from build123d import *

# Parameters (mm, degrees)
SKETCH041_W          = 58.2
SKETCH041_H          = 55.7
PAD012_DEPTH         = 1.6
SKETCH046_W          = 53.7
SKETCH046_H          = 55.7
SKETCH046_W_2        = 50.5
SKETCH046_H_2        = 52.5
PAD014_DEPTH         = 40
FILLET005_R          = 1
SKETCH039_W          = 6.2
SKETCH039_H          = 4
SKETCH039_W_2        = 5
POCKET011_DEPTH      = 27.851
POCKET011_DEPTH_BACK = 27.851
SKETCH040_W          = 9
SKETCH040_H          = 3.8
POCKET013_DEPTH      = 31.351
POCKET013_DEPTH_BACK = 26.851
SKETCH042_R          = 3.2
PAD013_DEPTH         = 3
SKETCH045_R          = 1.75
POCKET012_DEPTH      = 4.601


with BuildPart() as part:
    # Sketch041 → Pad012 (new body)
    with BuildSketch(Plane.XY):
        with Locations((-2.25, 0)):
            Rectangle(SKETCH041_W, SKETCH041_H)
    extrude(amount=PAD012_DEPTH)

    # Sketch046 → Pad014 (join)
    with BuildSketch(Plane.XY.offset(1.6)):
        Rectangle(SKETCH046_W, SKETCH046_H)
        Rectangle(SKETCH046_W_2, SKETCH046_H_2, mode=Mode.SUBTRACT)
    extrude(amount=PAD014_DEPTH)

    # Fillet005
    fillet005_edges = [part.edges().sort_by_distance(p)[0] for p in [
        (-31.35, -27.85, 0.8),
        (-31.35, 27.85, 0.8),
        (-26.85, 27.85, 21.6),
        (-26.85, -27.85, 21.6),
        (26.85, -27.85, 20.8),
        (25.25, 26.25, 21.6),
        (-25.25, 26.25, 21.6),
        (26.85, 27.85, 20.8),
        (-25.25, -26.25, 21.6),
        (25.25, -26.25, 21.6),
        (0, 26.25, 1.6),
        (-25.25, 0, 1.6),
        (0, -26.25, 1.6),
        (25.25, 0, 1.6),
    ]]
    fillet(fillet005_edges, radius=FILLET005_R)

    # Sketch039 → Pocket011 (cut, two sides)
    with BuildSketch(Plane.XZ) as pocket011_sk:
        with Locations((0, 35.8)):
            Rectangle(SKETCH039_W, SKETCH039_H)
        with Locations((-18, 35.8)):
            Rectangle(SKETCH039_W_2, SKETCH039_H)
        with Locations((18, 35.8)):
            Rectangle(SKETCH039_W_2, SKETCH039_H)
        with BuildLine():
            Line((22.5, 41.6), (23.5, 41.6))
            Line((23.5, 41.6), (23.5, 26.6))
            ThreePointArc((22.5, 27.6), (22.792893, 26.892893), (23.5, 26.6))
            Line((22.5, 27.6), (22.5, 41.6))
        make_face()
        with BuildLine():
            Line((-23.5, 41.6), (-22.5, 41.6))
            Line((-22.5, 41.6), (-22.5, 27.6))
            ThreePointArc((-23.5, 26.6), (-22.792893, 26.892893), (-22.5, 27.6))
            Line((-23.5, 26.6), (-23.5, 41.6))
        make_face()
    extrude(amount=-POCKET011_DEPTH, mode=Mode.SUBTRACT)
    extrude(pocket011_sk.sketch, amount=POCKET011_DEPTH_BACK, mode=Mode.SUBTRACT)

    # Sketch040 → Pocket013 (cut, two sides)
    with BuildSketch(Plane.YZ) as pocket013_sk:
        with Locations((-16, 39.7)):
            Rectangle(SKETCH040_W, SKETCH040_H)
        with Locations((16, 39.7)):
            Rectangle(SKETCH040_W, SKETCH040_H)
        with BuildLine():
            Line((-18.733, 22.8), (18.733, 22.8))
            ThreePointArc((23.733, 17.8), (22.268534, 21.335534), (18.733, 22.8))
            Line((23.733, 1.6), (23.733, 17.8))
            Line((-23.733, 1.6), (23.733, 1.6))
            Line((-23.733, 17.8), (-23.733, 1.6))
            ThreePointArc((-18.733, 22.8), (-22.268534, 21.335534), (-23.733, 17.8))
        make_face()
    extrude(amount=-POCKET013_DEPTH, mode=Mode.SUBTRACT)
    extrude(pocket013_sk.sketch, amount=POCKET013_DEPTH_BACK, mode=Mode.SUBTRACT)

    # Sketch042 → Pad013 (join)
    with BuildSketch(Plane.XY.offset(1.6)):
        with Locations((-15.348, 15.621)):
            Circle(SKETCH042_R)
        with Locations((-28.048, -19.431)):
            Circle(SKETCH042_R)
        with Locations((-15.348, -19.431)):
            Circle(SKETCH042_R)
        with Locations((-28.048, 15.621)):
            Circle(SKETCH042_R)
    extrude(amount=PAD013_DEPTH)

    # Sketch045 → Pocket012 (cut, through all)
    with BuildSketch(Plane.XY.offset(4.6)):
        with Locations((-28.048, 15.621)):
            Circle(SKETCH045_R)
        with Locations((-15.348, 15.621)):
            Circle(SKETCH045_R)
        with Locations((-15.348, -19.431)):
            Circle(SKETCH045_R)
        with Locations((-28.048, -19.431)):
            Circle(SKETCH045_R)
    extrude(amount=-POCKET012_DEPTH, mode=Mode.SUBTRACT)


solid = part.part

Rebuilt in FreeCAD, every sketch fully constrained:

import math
import FreeCAD as App
import Part
import Sketcher
from FreeCAD import Vector
Q = App.Units.Quantity


def edges_at(feature, points):
    """Names of the edges that pass closest to the given points."""
    edges = feature.Shape.Edges
    near = lambda p: min(range(len(edges)), key=lambda i: edges[i].distToShape(Part.Vertex(*p))[0])
    return sorted({f"Edge{near(p) + 1}" for p in points})


def add_polygon(sketch, points):
    """Adds a closed chain of lines whose ends are joined by coincident constraints."""
    first, n = sketch.GeometryCount, len(points)
    for a, b in zip(points, points[1:] + points[:1]):
        sketch.addGeometry(Part.LineSegment(App.Vector(*a, 0), App.Vector(*b, 0)), False)
    for i in range(n):
        sketch.addConstraint(Sketcher.Constraint("Coincident", first + i, 2, first + (i + 1) % n, 1))

doc = App.newDocument("Part")
body = doc.addObject("PartDesign::Body", "Body")

sketch1 = body.newObject("Sketcher::SketchObject", "Sketch")
sketch1.AttachmentSupport = (doc.getObject("XY_Plane"), [""])
sketch1.MapMode = "FlatFace"
add_polygon(sketch1, [(-31, 28), (-31, -28), (27, -28), (27, 28)])
sketch1.addConstraint(Sketcher.Constraint("Vertical", 0))
sketch1.addConstraint(Sketcher.Constraint("Horizontal", 1))
sketch1.addConstraint(Sketcher.Constraint("Vertical", 2))
sketch1.addConstraint(Sketcher.Constraint("Horizontal", 3))
sketch1.addConstraint(Sketcher.Constraint("DistanceX", 1, 1, 1, 2, Q("58.2 mm")))
sketch1.addConstraint(Sketcher.Constraint("DistanceY", 0, 2, 0, 1, Q("55.7 mm")))
sketch1.addConstraint(Sketcher.Constraint("DistanceX", 0, 2, -1, 1, Q("31.35 mm")))
sketch1.addConstraint(Sketcher.Constraint("DistanceY", 0, 2, -1, 1, Q("27.85 mm")))
pad1 = body.newObject("PartDesign::Pad", "Pad")
pad1.Profile = sketch1
pad1.Length = 1.6

sketch2 = body.newObject("Sketcher::SketchObject", "Sketch001")
sketch2.AttachmentSupport = (doc.getObject("XY_Plane"), [""])
sketch2.MapMode = "FlatFace"
sketch2.AttachmentOffset = App.Placement(Vector(0, 0, 1.6), App.Rotation())
add_polygon(sketch2, [(-27, 28), (-27, -28), (27, -28), (27, 28)])
add_polygon(sketch2, [(25, -26), (-25, -26), (-25, 26), (25, 26)])
sketch2.addConstraint(Sketcher.Constraint("Vertical", 0))
sketch2.addConstraint(Sketcher.Constraint("Horizontal", 1))
sketch2.addConstraint(Sketcher.Constraint("Vertical", 2))
sketch2.addConstraint(Sketcher.Constraint("Horizontal", 3))
sketch2.addConstraint(Sketcher.Constraint("Horizontal", 4))
sketch2.addConstraint(Sketcher.Constraint("Vertical", 5))
sketch2.addConstraint(Sketcher.Constraint("Horizontal", 6))
sketch2.addConstraint(Sketcher.Constraint("Vertical", 7))
sketch2.addConstraint(Sketcher.Constraint("Symmetric", 0, 2, 2, 2, -1, 1))
sketch2.addConstraint(Sketcher.Constraint("Symmetric", 4, 2, 6, 2, -1, 1))
sketch2.addConstraint(Sketcher.Constraint("DistanceX", 1, 1, 1, 2, Q("53.7 mm")))
sketch2.addConstraint(Sketcher.Constraint("DistanceX", 4, 2, 4, 1, Q("50.5 mm")))
sketch2.addConstraint(Sketcher.Constraint("DistanceY", 0, 2, 0, 1, Q("55.7 mm")))
sketch2.addConstraint(Sketcher.Constraint("DistanceY", 5, 1, 5, 2, Q("52.5 mm")))
pad2 = body.newObject("PartDesign::Pad", "Pad001")
pad2.Profile = sketch2
pad2.Length = 40
doc.recompute()

fillet = body.newObject("PartDesign::Fillet", "Fillet")
fillet.Base = (pad2, edges_at(pad2, [
    (-31.35, -27.85, 0.8),
    (-31.35, 27.85, 0.8),
    (-26.85, 27.85, 21.6),
    (-26.85, -27.85, 21.6),
    (26.85, -27.85, 20.8),
    (25.25, 26.25, 21.6),
    (-25.25, 26.25, 21.6),
    (26.85, 27.85, 20.8),
    (-25.25, -26.25, 21.6),
    (25.25, -26.25, 21.6),
    (0, 26.25, 1.6),
    (-25.25, 0, 1.6),
    (0, -26.25, 1.6),
    (25.25, 0, 1.6),
]))
fillet.Radius = 1

sketch3 = body.newObject("Sketcher::SketchObject", "Sketch002")
sketch3.AttachmentSupport = (doc.getObject("XZ_Plane"), [""])
sketch3.MapMode = "FlatFace"
add_polygon(sketch3, [(-3.1, 37.8), (-3.1, 33.8), (3.1, 33.8), (3.1, 37.8)])
add_polygon(sketch3, [(-20.5, 37.8), (-20.5, 33.8), (-15.5, 33.8), (-15.5, 37.8)])
add_polygon(sketch3, [(15.5, 37.8), (15.5, 33.8), (20.5, 33.8), (20.5, 37.8)])
sketch3.addGeometry(Part.LineSegment(Vector(23.5, 41.6, 0), Vector(22.5, 41.6, 0)), False)
sketch3.addGeometry(Part.LineSegment(Vector(22.5, 41.6, 0), Vector(22.5, 27.6, 0)), False)
sketch3.addGeometry(Part.ArcOfCircle(Part.Circle(Vector(23.5, 27.6, 0), Vector(0, 0, 1), 1), math.radians(180), math.radians(270)), False)
sketch3.addGeometry(Part.LineSegment(Vector(23.5, 26.6, 0), Vector(23.5, 41.6, 0)), False)
sketch3.addGeometry(Part.LineSegment(Vector(-22.5, 41.6, 0), Vector(-23.5, 41.6, 0)), False)
sketch3.addGeometry(Part.LineSegment(Vector(-23.5, 41.6, 0), Vector(-23.5, 26.6, 0)), False)
sketch3.addGeometry(Part.ArcOfCircle(Part.Circle(Vector(-23.5, 27.6, 0), Vector(0, 0, 1), 1), math.radians(-90), math.radians(0)), False)
sketch3.addGeometry(Part.LineSegment(Vector(-22.5, 27.6, 0), Vector(-22.5, 41.6, 0)), False)
sketch3.addConstraint(Sketcher.Constraint("Coincident", 12, 2, 13, 1))
sketch3.addConstraint(Sketcher.Constraint("Tangent", 13, 2, 14, 1))
sketch3.addConstraint(Sketcher.Constraint("Coincident", 14, 2, 15, 1))
sketch3.addConstraint(Sketcher.Constraint("Coincident", 15, 2, 12, 1))
sketch3.addConstraint(Sketcher.Constraint("Coincident", 16, 2, 17, 1))
sketch3.addConstraint(Sketcher.Constraint("Coincident", 17, 2, 18, 1))
sketch3.addConstraint(Sketcher.Constraint("Tangent", 18, 2, 19, 1))
sketch3.addConstraint(Sketcher.Constraint("Coincident", 19, 2, 16, 1))
sketch3.addConstraint(Sketcher.Constraint("Vertical", 0))
sketch3.addConstraint(Sketcher.Constraint("Horizontal", 1))
sketch3.addConstraint(Sketcher.Constraint("Vertical", 2))
sketch3.addConstraint(Sketcher.Constraint("Horizontal", 3))
sketch3.addConstraint(Sketcher.Constraint("Vertical", 4))
sketch3.addConstraint(Sketcher.Constraint("Horizontal", 5))
sketch3.addConstraint(Sketcher.Constraint("Vertical", 6))
sketch3.addConstraint(Sketcher.Constraint("Horizontal", 7))
sketch3.addConstraint(Sketcher.Constraint("Vertical", 8))
sketch3.addConstraint(Sketcher.Constraint("Horizontal", 9))
sketch3.addConstraint(Sketcher.Constraint("Vertical", 10))
sketch3.addConstraint(Sketcher.Constraint("Horizontal", 11))
sketch3.addConstraint(Sketcher.Constraint("Horizontal", 12))
sketch3.addConstraint(Sketcher.Constraint("Vertical", 13))
sketch3.addConstraint(Sketcher.Constraint("Vertical", 15))
sketch3.addConstraint(Sketcher.Constraint("Horizontal", 16))
sketch3.addConstraint(Sketcher.Constraint("Vertical", 17))
sketch3.addConstraint(Sketcher.Constraint("Vertical", 19))
sketch3.addConstraint(Sketcher.Constraint("Equal", 14, 18))
sketch3.addConstraint(Sketcher.Constraint("Symmetric", 14, 3, 18, 3, -2))
sketch3.addConstraint(Sketcher.Constraint("Symmetric", 5, 2, 8, 2, -2))
sketch3.addConstraint(Sketcher.Constraint("Symmetric", 7, 2, 10, 2, -2))
sketch3.addConstraint(Sketcher.Constraint("Symmetric", 15, 2, 16, 2, -2))
sketch3.addConstraint(Sketcher.Constraint("Horizontal", 1, 2, 4, 2))
sketch3.addConstraint(Sketcher.Constraint("Horizontal", 3, 2, 6, 2))
sketch3.addConstraint(Sketcher.Constraint("Vertical", 18, 3, 16, 2))
sketch3.addConstraint(Sketcher.Constraint("Radius", 14, Q("0.999999 mm")))
sketch3.addConstraint(Sketcher.Constraint("DistanceX", 5, 1, 5, 2, Q("5 mm")))
sketch3.addConstraint(Sketcher.Constraint("DistanceY", 0, 2, 0, 1, Q("4 mm")))
sketch3.addConstraint(Sketcher.Constraint("DistanceY", 13, 2, 13, 1, Q("14 mm")))
sketch3.addConstraint(Sketcher.Constraint("DistanceX", 1, 1, 1, 2, Q("6.2 mm")))
sketch3.addConstraint(Sketcher.Constraint("DistanceX", 18, 3, 14, 3, Q("46.999999 mm")))
sketch3.addConstraint(Sketcher.Constraint("DistanceX", 18, 3, 4, 2, Q("2.999999 mm")))
sketch3.addConstraint(Sketcher.Constraint("DistanceY", -1, 1, 14, 3, Q("27.599999 mm")))
sketch3.addConstraint(Sketcher.Constraint("DistanceX", 0, 2, -1, 1, Q("3.1 mm")))
sketch3.addConstraint(Sketcher.Constraint("DistanceY", -1, 1, 0, 2, Q("33.8 mm")))
pocket1 = body.newObject("PartDesign::Pocket", "Pocket")
pocket1.Profile = sketch3
pocket1.Type = "ThroughAll"
pocket1.Midplane = True

sketch4 = body.newObject("Sketcher::SketchObject", "Sketch003")
sketch4.AttachmentSupport = (doc.getObject("YZ_Plane"), [""])
sketch4.MapMode = "FlatFace"
add_polygon(sketch4, [(-20.5, 41.6), (-20.5, 37.8), (-11.5, 37.8), (-11.5, 41.6)])
add_polygon(sketch4, [(11.5, 41.6), (11.5, 37.8), (20.5, 37.8), (20.5, 41.6)])
sketch4.addGeometry(Part.LineSegment(Vector(18.7, 22.8, 0), Vector(-18.7, 22.8, 0)), False)
sketch4.addGeometry(Part.ArcOfCircle(Part.Circle(Vector(-18.7, 17.8, 0), Vector(0, 0, 1), 5), math.radians(90), math.radians(180)), False)
sketch4.addGeometry(Part.LineSegment(Vector(-23.7, 17.8, 0), Vector(-23.7, 1.6, 0)), False)
sketch4.addGeometry(Part.LineSegment(Vector(-23.7, 1.6, 0), Vector(23.7, 1.6, 0)), False)
sketch4.addGeometry(Part.LineSegment(Vector(23.7, 1.6, 0), Vector(23.7, 17.8, 0)), False)
sketch4.addGeometry(Part.ArcOfCircle(Part.Circle(Vector(18.7, 17.8, 0), Vector(0, 0, 1), 5), math.radians(0), math.radians(90)), False)
sketch4.addConstraint(Sketcher.Constraint("Tangent", 8, 2, 9, 1))
sketch4.addConstraint(Sketcher.Constraint("Tangent", 9, 2, 10, 1))
sketch4.addConstraint(Sketcher.Constraint("Coincident", 10, 2, 11, 1))
sketch4.addConstraint(Sketcher.Constraint("Coincident", 11, 2, 12, 1))
sketch4.addConstraint(Sketcher.Constraint("Tangent", 12, 2, 13, 1))
sketch4.addConstraint(Sketcher.Constraint("Tangent", 13, 2, 8, 1))
sketch4.addConstraint(Sketcher.Constraint("Vertical", 0))
sketch4.addConstraint(Sketcher.Constraint("Horizontal", 1))
sketch4.addConstraint(Sketcher.Constraint("Vertical", 2))
sketch4.addConstraint(Sketcher.Constraint("Horizontal", 3))
sketch4.addConstraint(Sketcher.Constraint("Vertical", 4))
sketch4.addConstraint(Sketcher.Constraint("Horizontal", 5))
sketch4.addConstraint(Sketcher.Constraint("Vertical", 6))
sketch4.addConstraint(Sketcher.Constraint("Horizontal", 7))
sketch4.addConstraint(Sketcher.Constraint("Horizontal", 8))
sketch4.addConstraint(Sketcher.Constraint("Vertical", 10))
sketch4.addConstraint(Sketcher.Constraint("Horizontal", 11))
sketch4.addConstraint(Sketcher.Constraint("Vertical", 12))
sketch4.addConstraint(Sketcher.Constraint("Equal", 9, 13))
sketch4.addConstraint(Sketcher.Constraint("Symmetric", 1, 2, 4, 2, -2))
sketch4.addConstraint(Sketcher.Constraint("Symmetric", 3, 2, 6, 2, -2))
sketch4.addConstraint(Sketcher.Constraint("Radius", 9, Q("5 mm")))
sketch4.addConstraint(Sketcher.Constraint("DistanceX", 1, 1, 1, 2, Q("9 mm")))
sketch4.addConstraint(Sketcher.Constraint("DistanceY", 0, 2, 0, 1, Q("3.8 mm")))
sketch4.addConstraint(Sketcher.Constraint("DistanceY", 10, 2, 10, 1, Q("16.2 mm")))
sketch4.addConstraint(Sketcher.Constraint("DistanceY", 9, 3, 0, 2, Q("20 mm")))
sketch4.addConstraint(Sketcher.Constraint("DistanceX", 1, 2, 4, 2, Q("23 mm")))
sketch4.addConstraint(Sketcher.Constraint("DistanceY", -1, 1, 9, 3, Q("17.8 mm")))
sketch4.addConstraint(Sketcher.Constraint("DistanceX", 8, 2, 8, 1, Q("37.466 mm")))
sketch4.addConstraint(Sketcher.Constraint("DistanceX", 9, 3, -1, 1, Q("18.733 mm")))
pocket2 = body.newObject("PartDesign::Pocket", "Pocket001")
pocket2.Profile = sketch4
pocket2.Type = "ThroughAll"
pocket2.Midplane = True

sketch5 = body.newObject("Sketcher::SketchObject", "Sketch004")
sketch5.AttachmentSupport = (doc.getObject("XY_Plane"), [""])
sketch5.MapMode = "FlatFace"
sketch5.AttachmentOffset = App.Placement(Vector(0, 0, 1.6), App.Rotation())
sketch5.addGeometry(Part.Circle(Vector(-15.3, 15.6, 0), Vector(0, 0, 1), 3.2), False)
sketch5.addGeometry(Part.Circle(Vector(-28, -19.4, 0), Vector(0, 0, 1), 3.2), False)
sketch5.addGeometry(Part.Circle(Vector(-15.3, -19.4, 0), Vector(0, 0, 1), 3.2), False)
sketch5.addGeometry(Part.Circle(Vector(-28, 15.6, 0), Vector(0, 0, 1), 3.2), False)
sketch5.addConstraint(Sketcher.Constraint("Equal", 0, 1))
sketch5.addConstraint(Sketcher.Constraint("Equal", 1, 2))
sketch5.addConstraint(Sketcher.Constraint("Equal", 2, 3))
sketch5.addConstraint(Sketcher.Constraint("Horizontal", 1, 3, 2, 3))
sketch5.addConstraint(Sketcher.Constraint("Horizontal", 0, 3, 3, 3))
sketch5.addConstraint(Sketcher.Constraint("Vertical", 0, 3, 2, 3))
sketch5.addConstraint(Sketcher.Constraint("Vertical", 1, 3, 3, 3))
sketch5.addConstraint(Sketcher.Constraint("Diameter", 0, Q("6.4 mm")))
sketch5.addConstraint(Sketcher.Constraint("DistanceX", 1, 3, 0, 3, Q("12.7 mm")))
sketch5.addConstraint(Sketcher.Constraint("DistanceX", 0, 3, -1, 1, Q("15.348 mm")))
sketch5.addConstraint(Sketcher.Constraint("DistanceY", -1, 1, 0, 3, Q("15.621 mm")))
sketch5.addConstraint(Sketcher.Constraint("DistanceY", 1, 3, -1, 1, Q("19.431 mm")))
pad3 = body.newObject("PartDesign::Pad", "Pad002")
pad3.Profile = sketch5
pad3.Length = 3

sketch6 = body.newObject("Sketcher::SketchObject", "Sketch005")
sketch6.AttachmentSupport = (doc.getObject("XY_Plane"), [""])
sketch6.MapMode = "FlatFace"
sketch6.AttachmentOffset = App.Placement(Vector(0, 0, 4.6), App.Rotation())
sketch6.addGeometry(Part.Circle(Vector(-28, 15.6, 0), Vector(0, 0, 1), 1.8), False)
sketch6.addGeometry(Part.Circle(Vector(-15.3, 15.6, 0), Vector(0, 0, 1), 1.8), False)
sketch6.addGeometry(Part.Circle(Vector(-15.3, -19.4, 0), Vector(0, 0, 1), 1.8), False)
sketch6.addGeometry(Part.Circle(Vector(-28, -19.4, 0), Vector(0, 0, 1), 1.8), False)
sketch6.addConstraint(Sketcher.Constraint("Equal", 0, 1))
sketch6.addConstraint(Sketcher.Constraint("Equal", 1, 2))
sketch6.addConstraint(Sketcher.Constraint("Equal", 2, 3))
sketch6.addConstraint(Sketcher.Constraint("Horizontal", 0, 3, 1, 3))
sketch6.addConstraint(Sketcher.Constraint("Horizontal", 2, 3, 3, 3))
sketch6.addConstraint(Sketcher.Constraint("Vertical", 1, 3, 2, 3))
sketch6.addConstraint(Sketcher.Constraint("Vertical", 0, 3, 3, 3))
sketch6.addConstraint(Sketcher.Constraint("Diameter", 0, Q("3.5 mm")))
sketch6.addConstraint(Sketcher.Constraint("DistanceX", 0, 3, 1, 3, Q("12.7 mm")))
sketch6.addConstraint(Sketcher.Constraint("DistanceX", 0, 3, -1, 1, Q("28.048 mm")))
sketch6.addConstraint(Sketcher.Constraint("DistanceY", -1, 1, 0, 3, Q("15.621 mm")))
sketch6.addConstraint(Sketcher.Constraint("DistanceY", 2, 3, -1, 1, Q("19.431 mm")))
pocket3 = body.newObject("PartDesign::Pocket", "Pocket002")
pocket3.Profile = sketch6
pocket3.Type = "ThroughAll"

doc.recompute()
